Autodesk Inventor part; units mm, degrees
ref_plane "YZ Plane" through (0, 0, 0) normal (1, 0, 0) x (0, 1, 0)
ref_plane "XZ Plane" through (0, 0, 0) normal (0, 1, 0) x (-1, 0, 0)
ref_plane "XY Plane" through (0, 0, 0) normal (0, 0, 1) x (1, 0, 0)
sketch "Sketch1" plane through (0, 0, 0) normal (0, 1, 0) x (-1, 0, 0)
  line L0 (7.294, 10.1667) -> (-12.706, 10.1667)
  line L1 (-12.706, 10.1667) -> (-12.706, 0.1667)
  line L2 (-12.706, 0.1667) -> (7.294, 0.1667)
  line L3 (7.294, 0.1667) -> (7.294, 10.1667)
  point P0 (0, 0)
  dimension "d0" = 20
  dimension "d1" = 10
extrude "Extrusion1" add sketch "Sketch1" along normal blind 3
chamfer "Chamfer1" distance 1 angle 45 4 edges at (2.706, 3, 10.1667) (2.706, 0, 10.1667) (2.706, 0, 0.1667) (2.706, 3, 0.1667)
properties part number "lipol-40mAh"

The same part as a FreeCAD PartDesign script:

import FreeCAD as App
import Part
import Sketcher


def edges_at(feature, points):
    """Names of the edges that pass closest to the given points."""
    edges = feature.Shape.Edges
    near = lambda p: min(range(len(edges)), key=lambda i: edges[i].distToShape(Part.Vertex(*p))[0])
    return sorted({f"Edge{near(p) + 1}" for p in points})


def add_polygon(sketch, points):
    """Adds a closed chain of lines whose ends are joined by coincident constraints."""
    first, n = sketch.GeometryCount, len(points)
    for a, b in zip(points, points[1:] + points[:1]):
        sketch.addGeometry(Part.LineSegment(App.Vector(*a, 0), App.Vector(*b, 0)), False)
    for i in range(n):
        sketch.addConstraint(Sketcher.Constraint("Coincident", first + i, 2, first + (i + 1) % n, 1))

doc = App.newDocument("Part")
body = doc.addObject("PartDesign::Body", "Body")

# Sketch on XZ plane
sketch1 = body.newObject("Sketcher::SketchObject", "Sketch")
sketch1.AttachmentSupport = (doc.getObject("XZ_Plane"), [""])
sketch1.MapMode = "FlatFace"
add_polygon(sketch1, [(-7, 0), (-7, 10), (13, 10), (13, 0)])  # lines 0-3
sketch1.addConstraint(Sketcher.Constraint("Vertical", 0))
sketch1.addConstraint(Sketcher.Constraint("Horizontal", 1))
sketch1.addConstraint(Sketcher.Constraint("Vertical", 2))
sketch1.addConstraint(Sketcher.Constraint("Horizontal", 3))
sketch1.addConstraint(Sketcher.Constraint("DistanceX", 1, 1, 1, 2, 20.0))
sketch1.addConstraint(Sketcher.Constraint("DistanceY", 0, 1, 0, 2, 10.0))
sketch1.addConstraint(Sketcher.Constraint("DistanceX", 0, 2, -1, 1, 7.294))
sketch1.addConstraint(Sketcher.Constraint("DistanceY", -1, 1, 0, 2, 10.1667))
pad1 = body.newObject("PartDesign::Pad", "Pad")
pad1.Profile = sketch1
pad1.Length = 3
pad1.Reversed = True
doc.recompute()

chamfer = body.newObject("PartDesign::Chamfer", "Chamfer")
chamfer.Base = (pad1, edges_at(pad1, [
    (2.706, 3, 10.167),
    (2.706, 0, 10.167),
    (2.706, 0, 0.167),
    (2.706, 3, 0.167),
]))
chamfer.Size = 1

doc.recompute()
